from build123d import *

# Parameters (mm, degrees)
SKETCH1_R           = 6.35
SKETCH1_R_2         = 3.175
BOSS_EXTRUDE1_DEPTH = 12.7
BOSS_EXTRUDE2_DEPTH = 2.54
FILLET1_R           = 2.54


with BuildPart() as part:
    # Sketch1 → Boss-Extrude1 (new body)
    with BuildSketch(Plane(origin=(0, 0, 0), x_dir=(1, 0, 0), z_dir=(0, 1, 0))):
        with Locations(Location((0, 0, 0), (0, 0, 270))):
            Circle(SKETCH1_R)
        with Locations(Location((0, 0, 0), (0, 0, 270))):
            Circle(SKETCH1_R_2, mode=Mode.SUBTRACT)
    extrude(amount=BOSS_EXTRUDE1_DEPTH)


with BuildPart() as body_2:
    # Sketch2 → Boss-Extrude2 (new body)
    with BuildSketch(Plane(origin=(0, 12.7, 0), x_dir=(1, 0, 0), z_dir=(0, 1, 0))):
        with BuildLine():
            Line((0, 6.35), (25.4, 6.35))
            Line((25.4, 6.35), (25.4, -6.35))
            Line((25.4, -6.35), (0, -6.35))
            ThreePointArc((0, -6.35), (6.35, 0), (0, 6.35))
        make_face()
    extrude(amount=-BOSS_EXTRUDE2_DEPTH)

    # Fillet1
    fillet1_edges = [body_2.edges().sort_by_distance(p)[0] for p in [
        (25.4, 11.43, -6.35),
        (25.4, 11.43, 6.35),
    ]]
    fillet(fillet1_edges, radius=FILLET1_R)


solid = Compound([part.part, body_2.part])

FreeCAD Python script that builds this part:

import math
import FreeCAD as App
import Part
import Sketcher

V = App.Vector
Q = App.Units.Quantity


def edges_at(feature, points):
    """Names of the edges that pass closest to the given points."""
    edges = feature.Shape.Edges
    near = lambda p: min(range(len(edges)), key=lambda i: edges[i].distToShape(Part.Vertex(*p))[0])
    return sorted({f"Edge{near(p) + 1}" for p in points})

doc = App.newDocument("Part")
body = doc.addObject("PartDesign::Body", "Body")

sketch1 = body.newObject("Sketcher::SketchObject", "Sketch")
sketch1.AttachmentSupport = (doc.getObject("XZ_Plane"), [""])
sketch1.MapMode = "FlatFace"
sketch1.addGeometry([
    Part.Circle(V(0, 0, 0), V(0, 0, 1), 6.35),
    Part.Circle(V(0, 0, 0), V(0, 0, 1), 3.175),
], False)
sketch1.addConstraint([
    Sketcher.Constraint("Coincident", 0, 3, -1, 1),
    Sketcher.Constraint("Coincident", 1, 3, -1, 1),
    Sketcher.Constraint("Diameter", 0, Q("0.5 in")),
    Sketcher.Constraint("Diameter", 1, Q("0.25 in")),
])
pad1 = body.newObject("PartDesign::Pad", "Pad")
pad1.Profile = sketch1
pad1.Length = Q("0.5 in")
pad1.Reversed = True
body2 = doc.addObject("PartDesign::Body", "Body001")

sketch2 = body2.newObject("Sketcher::SketchObject", "Sketch001")
sketch2.AttachmentSupport = (doc.getObject("XZ_Plane001"), [""])
sketch2.MapMode = "FlatFace"
sketch2.AttachmentOffset = App.Placement(V(0, 0, -0.5 * 25.4), App.Rotation())
sketch2.addGeometry([
    Part.LineSegment(V(25.4, -6.35, 0), V(0, -6.35, 0)),
    Part.ArcOfCircle(Part.Circle(V(0, 0, 0), V(0, 0, 1), 6.35), math.radians(-90), math.radians(90)),
    Part.LineSegment(V(0, 6.35, 0), V(25.4, 6.35, 0)),
    Part.LineSegment(V(25.4, 6.35, 0), V(25.4, -6.35, 0)),
], False)
sketch2.addConstraint([
    Sketcher.Constraint("Tangent", 0, 2, 1, 1),
    Sketcher.Constraint("Tangent", 1, 2, 2, 1),
    Sketcher.Constraint("Coincident", 2, 2, 3, 1),
    Sketcher.Constraint("Coincident", 3, 2, 0, 1),
    Sketcher.Constraint("Horizontal", 0),
    Sketcher.Constraint("Horizontal", 2),
    Sketcher.Constraint("Vertical", 3),
    Sketcher.Constraint("Coincident", 1, 3, -1, 1),
    Sketcher.Constraint("DistanceX", 0, 2, 0, 1, Q("1 in")),
    Sketcher.Constraint("Radius", 1, Q("0.25 in")),
])
pad2 = body2.newObject("PartDesign::Pad", "Pad001")
pad2.Profile = sketch2
pad2.Length = Q("0.1 in")
doc.recompute()

fillet = body2.newObject("PartDesign::Fillet", "Fillet")
fillet.Base = (pad2, edges_at(pad2, [(25.4, 11.43, -6.35), (25.4, 11.43, 6.35)]))
fillet.Radius = Q("0.1 in")

doc.recompute()
